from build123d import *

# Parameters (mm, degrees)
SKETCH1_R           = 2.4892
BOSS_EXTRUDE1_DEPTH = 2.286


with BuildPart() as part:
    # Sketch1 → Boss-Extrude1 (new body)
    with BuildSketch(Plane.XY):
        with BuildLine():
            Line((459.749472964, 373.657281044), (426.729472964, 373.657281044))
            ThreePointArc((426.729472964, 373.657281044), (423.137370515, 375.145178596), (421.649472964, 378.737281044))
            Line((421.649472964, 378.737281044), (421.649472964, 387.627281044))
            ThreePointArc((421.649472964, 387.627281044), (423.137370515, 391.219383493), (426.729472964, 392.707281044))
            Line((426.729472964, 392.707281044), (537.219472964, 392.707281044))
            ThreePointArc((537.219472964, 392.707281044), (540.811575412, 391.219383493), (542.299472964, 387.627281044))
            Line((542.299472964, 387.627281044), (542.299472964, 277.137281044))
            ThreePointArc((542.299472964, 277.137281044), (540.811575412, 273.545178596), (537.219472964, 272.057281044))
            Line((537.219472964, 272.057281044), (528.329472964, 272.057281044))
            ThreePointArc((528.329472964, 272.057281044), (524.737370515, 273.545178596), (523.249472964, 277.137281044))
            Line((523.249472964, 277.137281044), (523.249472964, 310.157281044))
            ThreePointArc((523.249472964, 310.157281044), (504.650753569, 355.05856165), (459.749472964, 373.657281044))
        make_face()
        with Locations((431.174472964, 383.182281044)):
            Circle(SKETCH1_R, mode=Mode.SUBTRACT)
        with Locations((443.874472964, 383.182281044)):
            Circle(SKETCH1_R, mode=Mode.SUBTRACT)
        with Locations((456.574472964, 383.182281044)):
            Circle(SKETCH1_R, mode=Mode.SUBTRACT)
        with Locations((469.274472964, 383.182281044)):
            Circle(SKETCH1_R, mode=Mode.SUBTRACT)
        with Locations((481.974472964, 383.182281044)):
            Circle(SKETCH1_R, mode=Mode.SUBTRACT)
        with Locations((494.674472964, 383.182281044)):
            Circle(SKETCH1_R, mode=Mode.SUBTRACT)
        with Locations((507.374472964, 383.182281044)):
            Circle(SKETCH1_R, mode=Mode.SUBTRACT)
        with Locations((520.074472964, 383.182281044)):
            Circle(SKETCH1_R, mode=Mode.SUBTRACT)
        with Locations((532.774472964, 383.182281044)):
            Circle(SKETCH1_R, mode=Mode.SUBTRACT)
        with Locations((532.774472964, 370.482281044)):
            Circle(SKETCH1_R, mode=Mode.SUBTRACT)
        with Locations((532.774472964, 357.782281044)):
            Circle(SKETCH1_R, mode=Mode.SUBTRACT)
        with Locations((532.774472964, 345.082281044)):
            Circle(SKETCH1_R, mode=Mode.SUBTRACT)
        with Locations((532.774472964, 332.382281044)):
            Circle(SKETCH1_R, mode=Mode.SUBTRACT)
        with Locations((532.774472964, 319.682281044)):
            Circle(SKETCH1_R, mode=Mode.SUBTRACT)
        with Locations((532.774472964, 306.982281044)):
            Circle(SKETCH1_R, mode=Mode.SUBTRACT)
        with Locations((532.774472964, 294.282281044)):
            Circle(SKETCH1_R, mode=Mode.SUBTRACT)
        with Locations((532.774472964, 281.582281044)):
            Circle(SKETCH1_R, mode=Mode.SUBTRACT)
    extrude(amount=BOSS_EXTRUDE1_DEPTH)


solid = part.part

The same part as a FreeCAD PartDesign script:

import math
import FreeCAD as App
import Part
import Sketcher
Q = App.Units.Quantity

doc = App.newDocument("Part")
body = doc.addObject("PartDesign::Body", "Body")

sketch1 = doc.addObject("Sketcher::SketchObject", "Sketch")
body.addObject(sketch1)
sketch1.AttachmentSupport = (doc.XY_Plane, [""])
sketch1.MapMode = "FlatFace"
sketch1.addGeometry([
    Part.LineSegment(App.Vector(426.7, 373.7, 0), App.Vector(459.7, 373.7, 0)),
    Part.ArcOfCircle(Part.Circle(App.Vector(459.7, 310.2, 0), App.Vector(0, 0, 1), 63.5), math.radians(0), math.radians(90)),
    Part.LineSegment(App.Vector(523.2, 310.2, 0), App.Vector(523.2, 277.1, 0)),
    Part.ArcOfCircle(Part.Circle(App.Vector(528.3, 277.1, 0), App.Vector(0, 0, 1), 5.1), math.radians(180), math.radians(270)),
    Part.LineSegment(App.Vector(528.3, 272.1, 0), App.Vector(537.2, 272.1, 0)),
    Part.ArcOfCircle(Part.Circle(App.Vector(537.2, 277.1, 0), App.Vector(0, 0, 1), 5.1), math.radians(-90), math.radians(0)),
    Part.LineSegment(App.Vector(542.3, 277.1, 0), App.Vector(542.3, 387.6, 0)),
    Part.ArcOfCircle(Part.Circle(App.Vector(537.2, 387.6, 0), App.Vector(0, 0, 1), 5.1), math.radians(0), math.radians(90)),
    Part.LineSegment(App.Vector(537.2, 392.7, 0), App.Vector(426.7, 392.7, 0)),
    Part.ArcOfCircle(Part.Circle(App.Vector(426.7, 387.6, 0), App.Vector(0, 0, 1), 5.1), math.radians(90), math.radians(180)),
    Part.LineSegment(App.Vector(421.6, 387.6, 0), App.Vector(421.6, 378.7, 0)),
    Part.ArcOfCircle(Part.Circle(App.Vector(426.7, 378.7, 0), App.Vector(0, 0, 1), 5.1), math.radians(180), math.radians(270)),
    Part.Circle(App.Vector(532.8, 281.6, 0), App.Vector(0, 0, 1), 2.5),
    Part.Circle(App.Vector(532.8, 294.3, 0), App.Vector(0, 0, 1), 2.5),
    Part.Circle(App.Vector(532.8, 307, 0), App.Vector(0, 0, 1), 2.5),
    Part.Circle(App.Vector(532.8, 319.7, 0), App.Vector(0, 0, 1), 2.5),
    Part.Circle(App.Vector(532.8, 332.4, 0), App.Vector(0, 0, 1), 2.5),
    Part.Circle(App.Vector(532.8, 345.1, 0), App.Vector(0, 0, 1), 2.5),
    Part.Circle(App.Vector(532.8, 357.8, 0), App.Vector(0, 0, 1), 2.5),
    Part.Circle(App.Vector(532.8, 370.5, 0), App.Vector(0, 0, 1), 2.5),
    Part.Circle(App.Vector(532.8, 383.2, 0), App.Vector(0, 0, 1), 2.5),
    Part.Circle(App.Vector(520.1, 383.2, 0), App.Vector(0, 0, 1), 2.5),
    Part.Circle(App.Vector(507.4, 383.2, 0), App.Vector(0, 0, 1), 2.5),
    Part.Circle(App.Vector(494.7, 383.2, 0), App.Vector(0, 0, 1), 2.5),
    Part.Circle(App.Vector(482, 383.2, 0), App.Vector(0, 0, 1), 2.5),
    Part.Circle(App.Vector(469.3, 383.2, 0), App.Vector(0, 0, 1), 2.5),
    Part.Circle(App.Vector(456.6, 383.2, 0), App.Vector(0, 0, 1), 2.5),
    Part.Circle(App.Vector(443.9, 383.2, 0), App.Vector(0, 0, 1), 2.5),
    Part.Circle(App.Vector(431.2, 383.2, 0), App.Vector(0, 0, 1), 2.5),
], False)
sketch1.addConstraint([
    Sketcher.Constraint("Tangent", 0, 2, 1, 2),
    Sketcher.Constraint("Tangent", 1, 1, 2, 1),
    Sketcher.Constraint("Tangent", 2, 2, 3, 1),
    Sketcher.Constraint("Tangent", 3, 2, 4, 1),
    Sketcher.Constraint("Tangent", 4, 2, 5, 1),
    Sketcher.Constraint("Tangent", 5, 2, 6, 1),
    Sketcher.Constraint("Tangent", 6, 2, 7, 1),
    Sketcher.Constraint("Tangent", 7, 2, 8, 1),
    Sketcher.Constraint("Tangent", 8, 2, 9, 1),
    Sketcher.Constraint("Tangent", 9, 2, 10, 1),
    Sketcher.Constraint("Tangent", 10, 2, 11, 1),
    Sketcher.Constraint("Tangent", 11, 2, 0, 1),
    Sketcher.Constraint("Horizontal", 0),
    Sketcher.Constraint("Vertical", 2),
    Sketcher.Constraint("Horizontal", 4),
    Sketcher.Constraint("Vertical", 6),
    Sketcher.Constraint("Horizontal", 8),
    Sketcher.Constraint("Vertical", 10),
    Sketcher.Constraint("Equal", 3, 5),
    Sketcher.Constraint("Equal", 5, 7),
    Sketcher.Constraint("Equal", 7, 9),
    Sketcher.Constraint("Equal", 9, 11),
    Sketcher.Constraint("Equal", 12, 13),
    Sketcher.Constraint("Equal", 13, 14),
    Sketcher.Constraint("Equal", 14, 15),
    Sketcher.Constraint("Equal", 15, 16),
    Sketcher.Constraint("Equal", 16, 17),
    Sketcher.Constraint("Equal", 17, 18),
    Sketcher.Constraint("Equal", 18, 19),
    Sketcher.Constraint("Equal", 19, 20),
    Sketcher.Constraint("Equal", 20, 21),
    Sketcher.Constraint("Equal", 21, 22),
    Sketcher.Constraint("Equal", 22, 23),
    Sketcher.Constraint("Equal", 23, 24),
    Sketcher.Constraint("Equal", 24, 25),
    Sketcher.Constraint("Equal", 25, 26),
    Sketcher.Constraint("Equal", 26, 27),
    Sketcher.Constraint("Equal", 27, 28),
    Sketcher.Constraint("Horizontal", 20, 3, 21, 3),
    Sketcher.Constraint("Horizontal", 21, 3, 22, 3),
    Sketcher.Constraint("Horizontal", 22, 3, 23, 3),
    Sketcher.Constraint("Horizontal", 23, 3, 24, 3),
    Sketcher.Constraint("Horizontal", 24, 3, 25, 3),
    Sketcher.Constraint("Horizontal", 25, 3, 26, 3),
    Sketcher.Constraint("Horizontal", 26, 3, 27, 3),
    Sketcher.Constraint("Horizontal", 27, 3, 28, 3),
    Sketcher.Constraint("Vertical", 12, 3, 13, 3),
    Sketcher.Constraint("Vertical", 13, 3, 14, 3),
    Sketcher.Constraint("Vertical", 14, 3, 15, 3),
    Sketcher.Constraint("Vertical", 15, 3, 16, 3),
    Sketcher.Constraint("Vertical", 16, 3, 17, 3),
    Sketcher.Constraint("Vertical", 17, 3, 18, 3),
    Sketcher.Constraint("Vertical", 18, 3, 19, 3),
    Sketcher.Constraint("Vertical", 19, 3, 20, 3),
    Sketcher.Constraint("Equal", 0, 2),
    Sketcher.Constraint("Equal", 8, 6),
    Sketcher.Constraint("Radius", 1, Q("2.5 in")),
    Sketcher.Constraint("Radius", 3, Q("0.2 in")),
    Sketcher.Constraint("Diameter", 12, Q("0.196 in")),
    Sketcher.Constraint("DistanceX", 0, 1, 0, 2, Q("1.3 in")),
    Sketcher.Constraint("DistanceY", 12, 3, 14, 3, Q("1 in")),
    Sketcher.Constraint("DistanceY", 13, 3, 15, 3, Q("1 in")),
    Sketcher.Constraint("DistanceY", 14, 3, 16, 3, Q("1 in")),
    Sketcher.Constraint("DistanceY", 15, 3, 17, 3, Q("1 in")),
    Sketcher.Constraint("DistanceY", 16, 3, 18, 3, Q("1 in")),
    Sketcher.Constraint("DistanceY", 17, 3, 19, 3, Q("1 in")),
    Sketcher.Constraint("DistanceY", 18, 3, 20, 3, Q("1 in")),
    Sketcher.Constraint("DistanceX", 22, 3, 20, 3, Q("1 in")),
    Sketcher.Constraint("DistanceX", 23, 3, 21, 3, Q("1 in")),
    Sketcher.Constraint("DistanceX", 24, 3, 22, 3, Q("1 in")),
    Sketcher.Constraint("DistanceX", 25, 3, 23, 3, Q("1 in")),
    Sketcher.Constraint("DistanceX", 26, 3, 24, 3, Q("1 in")),
    Sketcher.Constraint("DistanceX", 27, 3, 25, 3, Q("1 in")),
    Sketcher.Constraint("DistanceX", 28, 3, 26, 3, Q("1 in")),
    Sketcher.Constraint("DistanceX", 4, 1, 4, 2, Q("0.35 in")),
    Sketcher.Constraint("DistanceY", 12, 3, 13, 3, Q("0.5 in")),
    Sketcher.Constraint("DistanceX", 21, 3, 20, 3, Q("0.5 in")),
    Sketcher.Constraint("DistanceX", 12, 3, 5, 3, Q("0.175 in")),
    Sketcher.Constraint("DistanceY", 5, 3, 12, 3, Q("0.175 in")),
    Sketcher.Constraint("DistanceY", -1, 1, 1, 3, Q("310.157281 mm")),
    Sketcher.Constraint("DistanceX", -1, 1, 1, 3, Q("459.749473 mm")),
])
pad1 = doc.addObject("PartDesign::Pad", "Pad")
body.addObject(pad1)
pad1.Profile = sketch1
pad1.Length = Q("0.09 in")

doc.recompute()
